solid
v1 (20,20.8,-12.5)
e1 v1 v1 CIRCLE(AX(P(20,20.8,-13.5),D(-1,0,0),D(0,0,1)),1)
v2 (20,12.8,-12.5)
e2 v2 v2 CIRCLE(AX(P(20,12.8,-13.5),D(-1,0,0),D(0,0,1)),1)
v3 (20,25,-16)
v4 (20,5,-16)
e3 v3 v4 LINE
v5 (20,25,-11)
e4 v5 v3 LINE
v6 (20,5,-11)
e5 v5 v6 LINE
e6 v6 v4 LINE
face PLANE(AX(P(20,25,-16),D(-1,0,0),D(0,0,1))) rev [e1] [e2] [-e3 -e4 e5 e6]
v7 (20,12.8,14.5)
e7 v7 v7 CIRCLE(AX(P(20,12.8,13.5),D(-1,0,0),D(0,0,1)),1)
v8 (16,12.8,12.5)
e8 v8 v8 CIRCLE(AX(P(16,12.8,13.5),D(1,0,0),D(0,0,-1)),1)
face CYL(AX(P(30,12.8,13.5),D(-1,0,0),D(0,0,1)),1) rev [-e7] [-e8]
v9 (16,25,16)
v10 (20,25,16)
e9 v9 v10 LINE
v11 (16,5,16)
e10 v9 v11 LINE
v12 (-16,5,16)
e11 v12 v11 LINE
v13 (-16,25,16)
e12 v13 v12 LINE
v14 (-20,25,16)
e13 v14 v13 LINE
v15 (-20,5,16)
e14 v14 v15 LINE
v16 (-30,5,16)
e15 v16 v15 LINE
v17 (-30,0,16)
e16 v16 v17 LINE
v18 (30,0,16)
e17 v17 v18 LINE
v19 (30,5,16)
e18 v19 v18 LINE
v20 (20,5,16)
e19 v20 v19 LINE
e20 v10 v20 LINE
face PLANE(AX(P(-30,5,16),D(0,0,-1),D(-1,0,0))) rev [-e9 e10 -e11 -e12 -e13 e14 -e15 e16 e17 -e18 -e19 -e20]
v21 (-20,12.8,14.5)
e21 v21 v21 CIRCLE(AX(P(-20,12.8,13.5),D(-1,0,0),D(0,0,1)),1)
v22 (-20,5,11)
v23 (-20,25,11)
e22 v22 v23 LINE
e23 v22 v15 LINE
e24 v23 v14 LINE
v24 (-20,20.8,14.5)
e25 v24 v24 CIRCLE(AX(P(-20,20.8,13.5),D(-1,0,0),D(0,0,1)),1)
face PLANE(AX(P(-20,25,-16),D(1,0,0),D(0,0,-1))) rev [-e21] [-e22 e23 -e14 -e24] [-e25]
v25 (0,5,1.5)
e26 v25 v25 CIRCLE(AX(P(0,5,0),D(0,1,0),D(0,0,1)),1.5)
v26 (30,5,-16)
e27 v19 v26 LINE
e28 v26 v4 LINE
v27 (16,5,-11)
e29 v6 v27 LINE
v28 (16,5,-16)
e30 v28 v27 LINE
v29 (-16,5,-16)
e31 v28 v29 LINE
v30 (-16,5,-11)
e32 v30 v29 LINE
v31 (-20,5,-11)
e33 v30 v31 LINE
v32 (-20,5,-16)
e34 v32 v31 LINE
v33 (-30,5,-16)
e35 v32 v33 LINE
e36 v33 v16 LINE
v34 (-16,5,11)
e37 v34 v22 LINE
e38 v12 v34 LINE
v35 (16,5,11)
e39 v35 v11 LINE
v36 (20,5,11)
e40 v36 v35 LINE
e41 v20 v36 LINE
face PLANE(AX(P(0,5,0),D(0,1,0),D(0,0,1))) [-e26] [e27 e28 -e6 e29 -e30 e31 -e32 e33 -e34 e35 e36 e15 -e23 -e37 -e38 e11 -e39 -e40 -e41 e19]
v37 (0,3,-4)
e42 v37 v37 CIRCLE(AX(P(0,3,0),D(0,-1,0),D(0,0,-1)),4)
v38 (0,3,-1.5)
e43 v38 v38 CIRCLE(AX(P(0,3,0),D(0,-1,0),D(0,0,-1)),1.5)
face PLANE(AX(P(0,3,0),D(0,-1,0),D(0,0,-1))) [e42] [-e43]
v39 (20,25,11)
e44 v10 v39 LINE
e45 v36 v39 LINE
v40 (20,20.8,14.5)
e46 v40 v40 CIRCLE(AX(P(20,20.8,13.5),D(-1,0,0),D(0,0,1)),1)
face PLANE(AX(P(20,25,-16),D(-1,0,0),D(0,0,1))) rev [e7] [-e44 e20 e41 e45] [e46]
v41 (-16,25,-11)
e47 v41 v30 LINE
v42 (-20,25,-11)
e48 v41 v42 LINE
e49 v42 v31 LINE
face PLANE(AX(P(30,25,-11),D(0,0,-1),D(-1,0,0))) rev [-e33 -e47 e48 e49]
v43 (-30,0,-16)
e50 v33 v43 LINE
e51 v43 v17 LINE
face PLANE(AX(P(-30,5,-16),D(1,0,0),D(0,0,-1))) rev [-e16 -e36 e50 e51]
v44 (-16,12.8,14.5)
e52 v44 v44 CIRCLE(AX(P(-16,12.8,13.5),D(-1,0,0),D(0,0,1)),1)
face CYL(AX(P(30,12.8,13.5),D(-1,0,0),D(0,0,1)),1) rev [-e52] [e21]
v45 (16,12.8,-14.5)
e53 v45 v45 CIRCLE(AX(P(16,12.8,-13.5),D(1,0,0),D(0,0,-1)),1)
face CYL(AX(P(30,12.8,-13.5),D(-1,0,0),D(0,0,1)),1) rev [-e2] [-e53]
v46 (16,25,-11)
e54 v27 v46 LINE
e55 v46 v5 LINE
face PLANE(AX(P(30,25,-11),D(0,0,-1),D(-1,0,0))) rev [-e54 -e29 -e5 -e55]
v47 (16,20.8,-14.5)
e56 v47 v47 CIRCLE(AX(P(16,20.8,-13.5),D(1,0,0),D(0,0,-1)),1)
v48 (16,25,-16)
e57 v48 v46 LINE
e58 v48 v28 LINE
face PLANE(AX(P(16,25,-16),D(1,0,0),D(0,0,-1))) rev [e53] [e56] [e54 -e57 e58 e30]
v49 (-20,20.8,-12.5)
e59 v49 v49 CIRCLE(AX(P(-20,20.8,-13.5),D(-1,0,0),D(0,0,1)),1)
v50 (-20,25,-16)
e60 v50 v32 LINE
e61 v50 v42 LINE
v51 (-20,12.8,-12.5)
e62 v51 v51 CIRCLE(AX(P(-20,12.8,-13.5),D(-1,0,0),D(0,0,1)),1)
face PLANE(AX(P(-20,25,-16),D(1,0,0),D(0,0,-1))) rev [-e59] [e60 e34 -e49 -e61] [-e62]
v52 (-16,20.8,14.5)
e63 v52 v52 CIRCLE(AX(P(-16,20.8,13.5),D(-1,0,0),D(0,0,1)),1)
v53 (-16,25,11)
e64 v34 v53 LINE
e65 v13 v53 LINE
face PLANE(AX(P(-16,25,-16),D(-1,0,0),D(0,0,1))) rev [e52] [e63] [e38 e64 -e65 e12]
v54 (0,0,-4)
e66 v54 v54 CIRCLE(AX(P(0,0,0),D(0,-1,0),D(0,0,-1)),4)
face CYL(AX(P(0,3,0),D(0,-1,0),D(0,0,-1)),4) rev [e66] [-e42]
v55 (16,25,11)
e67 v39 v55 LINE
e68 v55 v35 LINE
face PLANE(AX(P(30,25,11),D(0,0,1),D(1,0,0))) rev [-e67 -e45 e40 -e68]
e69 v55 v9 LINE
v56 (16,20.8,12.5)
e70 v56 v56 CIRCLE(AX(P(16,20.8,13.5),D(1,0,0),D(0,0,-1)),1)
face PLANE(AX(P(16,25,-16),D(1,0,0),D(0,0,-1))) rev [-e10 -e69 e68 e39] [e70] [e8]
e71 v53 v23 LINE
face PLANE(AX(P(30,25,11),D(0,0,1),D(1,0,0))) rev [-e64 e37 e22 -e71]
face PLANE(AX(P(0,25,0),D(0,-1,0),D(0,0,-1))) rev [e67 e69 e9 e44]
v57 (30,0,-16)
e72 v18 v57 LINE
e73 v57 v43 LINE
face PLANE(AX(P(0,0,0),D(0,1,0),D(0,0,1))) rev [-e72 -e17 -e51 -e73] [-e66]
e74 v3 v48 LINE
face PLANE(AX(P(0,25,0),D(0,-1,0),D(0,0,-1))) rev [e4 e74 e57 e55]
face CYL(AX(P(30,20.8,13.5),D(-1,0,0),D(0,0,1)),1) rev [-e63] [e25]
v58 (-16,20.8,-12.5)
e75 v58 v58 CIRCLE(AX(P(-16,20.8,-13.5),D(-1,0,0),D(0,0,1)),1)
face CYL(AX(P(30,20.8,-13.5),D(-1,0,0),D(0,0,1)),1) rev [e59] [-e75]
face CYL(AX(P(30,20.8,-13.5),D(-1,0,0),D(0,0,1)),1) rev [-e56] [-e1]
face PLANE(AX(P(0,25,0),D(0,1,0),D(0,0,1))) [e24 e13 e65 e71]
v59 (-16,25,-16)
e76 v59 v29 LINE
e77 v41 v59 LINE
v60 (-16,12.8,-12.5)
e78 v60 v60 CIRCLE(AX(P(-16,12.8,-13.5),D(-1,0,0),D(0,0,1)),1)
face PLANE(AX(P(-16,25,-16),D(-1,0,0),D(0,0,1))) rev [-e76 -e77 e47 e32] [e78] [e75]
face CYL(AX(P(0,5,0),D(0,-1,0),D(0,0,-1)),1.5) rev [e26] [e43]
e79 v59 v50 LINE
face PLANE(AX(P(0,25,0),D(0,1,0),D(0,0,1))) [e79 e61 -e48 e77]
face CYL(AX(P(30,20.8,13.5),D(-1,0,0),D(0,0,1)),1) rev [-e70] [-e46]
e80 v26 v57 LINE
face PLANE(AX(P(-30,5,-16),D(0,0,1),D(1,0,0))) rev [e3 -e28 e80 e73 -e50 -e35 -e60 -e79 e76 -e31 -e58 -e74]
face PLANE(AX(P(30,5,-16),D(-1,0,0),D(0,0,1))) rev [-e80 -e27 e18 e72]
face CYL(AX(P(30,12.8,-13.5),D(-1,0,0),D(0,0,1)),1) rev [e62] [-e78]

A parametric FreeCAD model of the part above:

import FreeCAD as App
import Part
import Sketcher
Q = App.Units.Quantity


def add_polygon(sketch, points):
    """Adds a closed chain of lines whose ends are joined by coincident constraints."""
    first, n = sketch.GeometryCount, len(points)
    for a, b in zip(points, points[1:] + points[:1]):
        sketch.addGeometry(Part.LineSegment(App.Vector(*a, 0), App.Vector(*b, 0)), False)
    for i in range(n):
        sketch.addConstraint(Sketcher.Constraint("Coincident", first + i, 2, first + (i + 1) % n, 1))

doc = App.newDocument("Part")
body = doc.addObject("PartDesign::Body", "Body")

# Sketch on XZ plane
sketch1 = body.newObject("Sketcher::SketchObject", "Sketch")
sketch1.AttachmentSupport = (doc.getObject("XZ_Plane"), [""])
sketch1.MapMode = "FlatFace"
add_polygon(sketch1, [(-30, -16), (-30, 16), (30, 16), (30, -16)])  # lines 0-3
sketch1.addGeometry(Part.Circle(App.Vector(0, 0, 0), App.Vector(0, 0, 1), 1.5), False)  # 4
sketch1.addConstraint([
    Sketcher.Constraint("Vertical", 0),
    Sketcher.Constraint("Horizontal", 1),
    Sketcher.Constraint("Vertical", 2),
    Sketcher.Constraint("Horizontal", 3),
    Sketcher.Constraint("Coincident", 4, 3, -1, 1),
    Sketcher.Constraint("Symmetric", 0, 2, 2, 2, -1, 1),
    Sketcher.Constraint("Diameter", 4, Q("3 mm")),
    Sketcher.Constraint("DistanceX", 1, 1, 1, 2, Q("60 mm")),
    Sketcher.Constraint("DistanceY", 0, 1, 0, 2, Q("32 mm")),
])
pad1 = body.newObject("PartDesign::Pad", "Pad")
pad1.Profile = sketch1
pad1.Length = 5
pad1.Reversed = True

# Sketch on XZ plane
sketch2 = body.newObject("Sketcher::SketchObject", "Sketch001")
sketch2.AttachmentSupport = (doc.getObject("XZ_Plane"), [""])
sketch2.MapMode = "FlatFace"
sketch2.addGeometry(Part.Circle(App.Vector(0, 0, 0), App.Vector(0, 0, 1), 4), False)
sketch2.addConstraint([
    Sketcher.Constraint("Coincident", 0, 3, -1, 1),
    Sketcher.Constraint("Diameter", 0, Q("8 mm")),
])
pocket1 = body.newObject("PartDesign::Pocket", "Pocket")
pocket1.Profile = sketch2
pocket1.Length = 3

# Sketch on XZ plane
sketch3 = body.newObject("Sketcher::SketchObject", "Sketch002")
sketch3.AttachmentSupport = (doc.getObject("XZ_Plane"), [""])
sketch3.MapMode = "FlatFace"
sketch3.AttachmentOffset = App.Placement(App.Vector(0, 0, -5), App.Rotation())
add_polygon(sketch3, [(-20, -16), (-20, 16), (-16, 16), (-16, -16)])  # lines 0-3
add_polygon(sketch3, [(16, -16), (16, 16), (20, 16), (20, -16)])  # lines 4-7
sketch3.addConstraint([
    Sketcher.Constraint("Vertical", 0),
    Sketcher.Constraint("Horizontal", 1),
    Sketcher.Constraint("Vertical", 2),
    Sketcher.Constraint("Horizontal", 3),
    Sketcher.Constraint("Vertical", 4),
    Sketcher.Constraint("Horizontal", 5),
    Sketcher.Constraint("Vertical", 6),
    Sketcher.Constraint("Horizontal", 7),
    Sketcher.Constraint("Symmetric", 2, 2, 4, 2, -1, 1),
    Sketcher.Constraint("Symmetric", 0, 2, 6, 2, -1, 1),
    Sketcher.Constraint("Horizontal", 1, 2, 4, 2),
    Sketcher.Constraint("DistanceX", 1, 1, 1, 2, Q("4 mm")),
    Sketcher.Constraint("DistanceY", 0, 1, 0, 2, Q("32 mm")),
    Sketcher.Constraint("DistanceX", 0, 2, -1, 1, Q("20 mm")),
])
pad2 = body.newObject("PartDesign::Pad", "Pad001")
pad2.Profile = sketch3
pad2.Length = 20
pad2.Reversed = True

# Sketch on YZ plane
sketch4 = body.newObject("Sketcher::SketchObject", "Sketch003")
sketch4.AttachmentSupport = (doc.getObject("YZ_Plane"), [""])
sketch4.MapMode = "FlatFace"
sketch4.AttachmentOffset = App.Placement(App.Vector(0, 0, -20), App.Rotation())
sketch4.addGeometry(Part.Circle(App.Vector(20.8, -13.5, 0), App.Vector(0, 0, 1), 1), False)  # 0
sketch4.addGeometry(Part.Circle(App.Vector(12.8, -13.5, 0), App.Vector(0, 0, 1), 1), False)  # 1
sketch4.addGeometry(Part.Circle(App.Vector(20.8, 13.5, 0), App.Vector(0, 0, 1), 1), False)  # 2
sketch4.addGeometry(Part.Circle(App.Vector(12.8, 13.5, 0), App.Vector(0, 0, 1), 1), False)  # 3
add_polygon(sketch4, [(25, -11), (5, -11), (5, 11), (25, 11)])  # lines 4-7
sketch4.addConstraint([
    Sketcher.Constraint("Horizontal", 4),
    Sketcher.Constraint("Vertical", 5),
    Sketcher.Constraint("Horizontal", 6),
    Sketcher.Constraint("Vertical", 7),
    Sketcher.Constraint("Equal", 0, 1),
    Sketcher.Constraint("Equal", 1, 2),
    Sketcher.Constraint("Equal", 2, 3),
    Sketcher.Constraint("Symmetric", 0, 3, 2, 3, -1),
    Sketcher.Constraint("Symmetric", 1, 3, 3, 3, -1),
    Sketcher.Constraint("Horizontal", 0, 3, 1, 3),
    Sketcher.Constraint("Diameter", 0, Q("2 mm")),
    Sketcher.Constraint("DistanceX", 4, 2, 4, 1, Q("20 mm")),
    Sketcher.Constraint("DistanceY", 5, 1, 5, 2, Q("22 mm")),
    Sketcher.Constraint("DistanceX", -1, 1, 4, 2, Q("5 mm")),
    Sketcher.Constraint("DistanceY", 4, 2, -1, 1, Q("11 mm")),
    Sketcher.Constraint("DistanceX", 1, 3, 0, 3, Q("8 mm")),
    Sketcher.Constraint("DistanceY", 0, 3, 2, 3, Q("27 mm")),
    Sketcher.Constraint("DistanceX", -1, 1, 0, 3, Q("20.8 mm")),
])
pocket2 = body.newObject("PartDesign::Pocket", "Pocket001")
pocket2.Profile = sketch4
pocket2.Type = "ThroughAll"
pocket2.Reversed = True

doc.recompute()
